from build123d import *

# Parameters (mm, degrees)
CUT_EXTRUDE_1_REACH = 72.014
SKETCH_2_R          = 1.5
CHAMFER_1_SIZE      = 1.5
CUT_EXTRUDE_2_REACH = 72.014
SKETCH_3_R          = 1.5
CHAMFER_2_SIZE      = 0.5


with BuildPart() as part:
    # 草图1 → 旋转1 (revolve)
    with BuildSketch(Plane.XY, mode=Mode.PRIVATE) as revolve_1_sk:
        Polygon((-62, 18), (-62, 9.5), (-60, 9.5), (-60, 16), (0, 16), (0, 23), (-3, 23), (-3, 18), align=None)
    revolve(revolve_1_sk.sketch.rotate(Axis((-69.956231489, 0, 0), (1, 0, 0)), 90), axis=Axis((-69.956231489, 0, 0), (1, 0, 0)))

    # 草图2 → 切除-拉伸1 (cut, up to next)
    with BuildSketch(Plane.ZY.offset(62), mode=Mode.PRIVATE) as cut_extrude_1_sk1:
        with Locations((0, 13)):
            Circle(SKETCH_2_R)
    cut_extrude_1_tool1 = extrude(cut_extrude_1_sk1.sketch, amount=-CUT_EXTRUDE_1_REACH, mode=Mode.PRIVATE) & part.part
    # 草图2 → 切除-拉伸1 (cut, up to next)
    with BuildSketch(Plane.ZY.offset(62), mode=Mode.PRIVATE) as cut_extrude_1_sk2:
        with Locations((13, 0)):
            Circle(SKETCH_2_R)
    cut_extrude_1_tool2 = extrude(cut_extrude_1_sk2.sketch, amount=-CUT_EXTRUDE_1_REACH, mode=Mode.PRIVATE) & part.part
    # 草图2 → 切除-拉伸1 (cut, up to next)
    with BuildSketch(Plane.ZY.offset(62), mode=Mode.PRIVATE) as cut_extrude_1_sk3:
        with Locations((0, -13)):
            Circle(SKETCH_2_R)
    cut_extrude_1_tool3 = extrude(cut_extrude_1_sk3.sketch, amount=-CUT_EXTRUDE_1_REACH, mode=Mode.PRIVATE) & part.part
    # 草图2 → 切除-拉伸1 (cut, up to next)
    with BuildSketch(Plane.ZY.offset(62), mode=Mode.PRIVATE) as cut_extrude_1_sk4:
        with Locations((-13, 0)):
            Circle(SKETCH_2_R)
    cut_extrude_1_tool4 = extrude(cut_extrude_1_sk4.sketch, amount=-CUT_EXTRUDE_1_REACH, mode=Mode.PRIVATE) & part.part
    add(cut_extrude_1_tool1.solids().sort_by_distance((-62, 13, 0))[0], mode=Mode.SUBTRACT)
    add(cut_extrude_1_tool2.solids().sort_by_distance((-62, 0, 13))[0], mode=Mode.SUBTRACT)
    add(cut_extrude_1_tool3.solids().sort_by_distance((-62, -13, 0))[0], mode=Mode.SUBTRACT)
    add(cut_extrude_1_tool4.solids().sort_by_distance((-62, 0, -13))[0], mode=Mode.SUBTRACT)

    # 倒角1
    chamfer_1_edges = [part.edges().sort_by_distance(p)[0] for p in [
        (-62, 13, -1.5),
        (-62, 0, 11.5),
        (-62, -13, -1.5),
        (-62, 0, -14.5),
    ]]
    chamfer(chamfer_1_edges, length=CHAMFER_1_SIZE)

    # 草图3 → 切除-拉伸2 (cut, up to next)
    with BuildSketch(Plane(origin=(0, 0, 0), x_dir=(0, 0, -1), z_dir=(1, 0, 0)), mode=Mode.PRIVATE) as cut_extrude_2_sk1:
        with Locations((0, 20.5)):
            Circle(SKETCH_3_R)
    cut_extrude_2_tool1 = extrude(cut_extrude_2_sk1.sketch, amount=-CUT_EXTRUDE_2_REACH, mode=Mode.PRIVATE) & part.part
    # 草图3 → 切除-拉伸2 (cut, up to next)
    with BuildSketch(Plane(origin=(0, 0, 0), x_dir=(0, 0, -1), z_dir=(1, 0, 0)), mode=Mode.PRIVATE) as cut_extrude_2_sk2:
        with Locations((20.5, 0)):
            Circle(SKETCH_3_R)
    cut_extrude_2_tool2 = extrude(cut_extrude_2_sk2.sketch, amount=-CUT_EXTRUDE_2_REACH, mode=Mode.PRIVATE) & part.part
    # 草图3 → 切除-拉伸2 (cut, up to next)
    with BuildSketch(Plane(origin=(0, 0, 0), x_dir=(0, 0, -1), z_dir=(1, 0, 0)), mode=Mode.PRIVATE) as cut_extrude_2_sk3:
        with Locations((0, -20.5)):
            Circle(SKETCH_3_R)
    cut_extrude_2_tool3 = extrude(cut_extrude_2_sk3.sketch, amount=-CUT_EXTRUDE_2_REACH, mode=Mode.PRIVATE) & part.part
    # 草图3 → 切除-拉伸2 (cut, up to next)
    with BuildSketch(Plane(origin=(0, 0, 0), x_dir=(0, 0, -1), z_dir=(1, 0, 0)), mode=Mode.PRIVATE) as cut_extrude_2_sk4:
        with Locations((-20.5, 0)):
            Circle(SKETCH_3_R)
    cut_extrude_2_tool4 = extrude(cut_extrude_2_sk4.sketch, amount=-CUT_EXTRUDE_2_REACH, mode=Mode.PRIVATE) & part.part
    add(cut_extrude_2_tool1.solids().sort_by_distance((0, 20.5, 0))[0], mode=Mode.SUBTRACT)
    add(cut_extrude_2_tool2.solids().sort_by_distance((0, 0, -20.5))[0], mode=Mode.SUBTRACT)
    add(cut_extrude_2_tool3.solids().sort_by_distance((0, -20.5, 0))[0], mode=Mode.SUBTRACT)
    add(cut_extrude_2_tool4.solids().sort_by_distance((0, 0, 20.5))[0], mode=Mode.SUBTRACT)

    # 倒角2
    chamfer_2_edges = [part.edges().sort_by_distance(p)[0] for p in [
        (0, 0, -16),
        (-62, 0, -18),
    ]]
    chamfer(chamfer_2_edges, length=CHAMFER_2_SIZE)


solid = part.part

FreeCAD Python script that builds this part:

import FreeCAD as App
import Part
import Sketcher

V = App.Vector


def edges_at(feature, points):
    """Names of the edges that pass closest to the given points."""
    edges = feature.Shape.Edges
    near = lambda p: min(range(len(edges)), key=lambda i: edges[i].distToShape(Part.Vertex(*p))[0])
    return sorted({f"Edge{near(p) + 1}" for p in points})

doc = App.newDocument("Part")
body = doc.addObject("PartDesign::Body", "Body")

# Sketch on XY plane
sketch1 = body.newObject("Sketcher::SketchObject", "Sketch")
sketch1.AttachmentSupport = (doc.getObject("XY_Plane"), [""])
sketch1.MapMode = "FlatFace"
sketch1.addGeometry([
    Part.LineSegment(V(-62, 18, 0), V(-62, 9.5, 0)),  # 0
    Part.LineSegment(V(-62, 9.5, 0), V(-60, 9.5, 0)),  # 1
    Part.LineSegment(V(-60, 9.5, 0), V(-60, 16, 0)),  # 2
    Part.LineSegment(V(-60, 16, 0), V(0, 16, 0)),  # 3
    Part.LineSegment(V(0, 16, 0), V(0, 23, 0)),  # 4
    Part.LineSegment(V(0, 23, 0), V(-3, 23, 0)),  # 5
    Part.LineSegment(V(-3, 23, 0), V(-3, 18, 0)),  # 6
    Part.LineSegment(V(-3, 18, 0), V(-62, 18, 0)),  # 7
], False)
sketch1.addConstraint([
    Sketcher.Constraint("Coincident", 0, 2, 1, 1),
    Sketcher.Constraint("Coincident", 1, 2, 2, 1),
    Sketcher.Constraint("Coincident", 2, 2, 3, 1),
    Sketcher.Constraint("Coincident", 3, 2, 4, 1),
    Sketcher.Constraint("Coincident", 4, 2, 5, 1),
    Sketcher.Constraint("Coincident", 5, 2, 6, 1),
    Sketcher.Constraint("Coincident", 6, 2, 7, 1),
    Sketcher.Constraint("Coincident", 7, 2, 0, 1),
    Sketcher.Constraint("Vertical", 0),
    Sketcher.Constraint("Horizontal", 1),
    Sketcher.Constraint("Vertical", 2),
    Sketcher.Constraint("Horizontal", 3),
    Sketcher.Constraint("Vertical", 4),
    Sketcher.Constraint("Horizontal", 5),
    Sketcher.Constraint("Vertical", 6),
    Sketcher.Constraint("Horizontal", 7),
    Sketcher.Constraint("PointOnObject", 3, 2, -2),
    Sketcher.Constraint("DistanceX", 1, 1, 1, 2, 2.0),
    Sketcher.Constraint("DistanceX", 3, 1, 3, 2, 60.0),
    Sketcher.Constraint("DistanceX", 5, 2, 5, 1, 3.0),
    Sketcher.Constraint("DistanceY", 4, 1, 4, 2, 7.0),
    Sketcher.Constraint("DistanceY", 6, 2, 6, 1, 5.0),
    Sketcher.Constraint("DistanceY", 0, 2, 0, 1, 8.5),
    Sketcher.Constraint("DistanceY", -1, 1, 2, 2, 16.0),
])
revolution = body.newObject("PartDesign::Revolution", "Revolution")
revolution.Profile = sketch1
revolution.ReferenceAxis = (sketch1, ["H_Axis"])
revolution.Angle = 360

# Sketch on YZ plane
sketch2 = body.newObject("Sketcher::SketchObject", "Sketch001")
sketch2.AttachmentSupport = (doc.getObject("YZ_Plane"), [""])
sketch2.MapMode = "FlatFace"
sketch2.AttachmentOffset = App.Placement(V(0, 0, -62), App.Rotation())
sketch2.addGeometry(Part.Circle(V(13, 0, 0), V(0, 0, 1), 1.5), False)
sketch2.addConstraint([
    Sketcher.Constraint("PointOnObject", 0, 3, -1),
    Sketcher.Constraint("Diameter", 0, 3.0),
    Sketcher.Constraint("DistanceX", -1, 1, 0, 3, 13.0),
])
pocket1 = body.newObject("PartDesign::Pocket", "Pocket")
pocket1.Profile = sketch2
pocket1.Type = "UpToFirst"
pocket1.Reversed = True

# Sketch on YZ plane
sketch3 = body.newObject("Sketcher::SketchObject", "Sketch002")
sketch3.AttachmentSupport = (doc.getObject("YZ_Plane"), [""])
sketch3.MapMode = "FlatFace"
sketch3.AttachmentOffset = App.Placement(V(0, 0, -62), App.Rotation())
sketch3.addGeometry(Part.Circle(V(0, 13, 0), V(0, 0, 1), 1.5), False)
sketch3.addConstraint([
    Sketcher.Constraint("PointOnObject", 0, 3, -2),
    Sketcher.Constraint("Diameter", 0, 3.0),
    Sketcher.Constraint("DistanceY", -1, 1, 0, 3, 13.0),
])
pocket2 = body.newObject("PartDesign::Pocket", "Pocket001")
pocket2.Profile = sketch3
pocket2.Type = "UpToFirst"
pocket2.Reversed = True

# Sketch on YZ plane
sketch4 = body.newObject("Sketcher::SketchObject", "Sketch003")
sketch4.AttachmentSupport = (doc.getObject("YZ_Plane"), [""])
sketch4.MapMode = "FlatFace"
sketch4.AttachmentOffset = App.Placement(V(0, 0, -62), App.Rotation())
sketch4.addGeometry(Part.Circle(V(-13, 0, 0), V(0, 0, 1), 1.5), False)
sketch4.addConstraint([
    Sketcher.Constraint("PointOnObject", 0, 3, -1),
    Sketcher.Constraint("Diameter", 0, 3.0),
    Sketcher.Constraint("DistanceX", 0, 3, -1, 1, 13.0),
])
pocket3 = body.newObject("PartDesign::Pocket", "Pocket002")
pocket3.Profile = sketch4
pocket3.Type = "UpToFirst"
pocket3.Reversed = True

# Sketch on YZ plane
sketch5 = body.newObject("Sketcher::SketchObject", "Sketch004")
sketch5.AttachmentSupport = (doc.getObject("YZ_Plane"), [""])
sketch5.MapMode = "FlatFace"
sketch5.AttachmentOffset = App.Placement(V(0, 0, -62), App.Rotation())
sketch5.addGeometry(Part.Circle(V(0, -13, 0), V(0, 0, 1), 1.5), False)
sketch5.addConstraint([
    Sketcher.Constraint("PointOnObject", 0, 3, -2),
    Sketcher.Constraint("Diameter", 0, 3.0),
    Sketcher.Constraint("DistanceY", 0, 3, -1, 1, 13.0),
])
pocket4 = body.newObject("PartDesign::Pocket", "Pocket003")
pocket4.Profile = sketch5
pocket4.Type = "UpToFirst"
pocket4.Reversed = True
doc.recompute()

chamfer = body.newObject("PartDesign::Chamfer", "Chamfer")
chamfer.Base = (pocket4, edges_at(pocket4, [
    (-62, 13, -1.5),
    (-62, 0, 11.5),
    (-62, -13, -1.5),
    (-62, 0, -14.5),
]))
chamfer.Size = 1.5

# Sketch on YZ plane
sketch6 = body.newObject("Sketcher::SketchObject", "Sketch005")
sketch6.AttachmentSupport = (doc.getObject("YZ_Plane"), [""])
sketch6.MapMode = "FlatFace"
sketch6.addGeometry(Part.Circle(V(20.5, 0, 0), V(0, 0, 1), 1.5), False)
sketch6.addConstraint([
    Sketcher.Constraint("PointOnObject", 0, 3, -1),
    Sketcher.Constraint("Diameter", 0, 3.0),
    Sketcher.Constraint("DistanceX", -1, 1, 0, 3, 20.5),
])
pocket5 = body.newObject("PartDesign::Pocket", "Pocket004")
pocket5.Profile = sketch6
pocket5.Type = "UpToFirst"

# Sketch on YZ plane
sketch7 = body.newObject("Sketcher::SketchObject", "Sketch006")
sketch7.AttachmentSupport = (doc.getObject("YZ_Plane"), [""])
sketch7.MapMode = "FlatFace"
sketch7.addGeometry(Part.Circle(V(0, -20.5, 0), V(0, 0, 1), 1.5), False)
sketch7.addConstraint([
    Sketcher.Constraint("PointOnObject", 0, 3, -2),
    Sketcher.Constraint("Diameter", 0, 3.0),
    Sketcher.Constraint("DistanceY", 0, 3, -1, 1, 20.5),
])
pocket6 = body.newObject("PartDesign::Pocket", "Pocket005")
pocket6.Profile = sketch7
pocket6.Type = "UpToFirst"

# Sketch on YZ plane
sketch8 = body.newObject("Sketcher::SketchObject", "Sketch007")
sketch8.AttachmentSupport = (doc.getObject("YZ_Plane"), [""])
sketch8.MapMode = "FlatFace"
sketch8.addGeometry(Part.Circle(V(-20.5, 0, 0), V(0, 0, 1), 1.5), False)
sketch8.addConstraint([
    Sketcher.Constraint("PointOnObject", 0, 3, -1),
    Sketcher.Constraint("Diameter", 0, 3.0),
    Sketcher.Constraint("DistanceX", 0, 3, -1, 1, 20.5),
])
pocket7 = body.newObject("PartDesign::Pocket", "Pocket006")
pocket7.Profile = sketch8
pocket7.Type = "UpToFirst"

# Sketch on YZ plane
sketch9 = body.newObject("Sketcher::SketchObject", "Sketch008")
sketch9.AttachmentSupport = (doc.getObject("YZ_Plane"), [""])
sketch9.MapMode = "FlatFace"
sketch9.addGeometry(Part.Circle(V(0, 20.5, 0), V(0, 0, 1), 1.5), False)
sketch9.addConstraint([
    Sketcher.Constraint("PointOnObject", 0, 3, -2),
    Sketcher.Constraint("Diameter", 0, 3.0),
    Sketcher.Constraint("DistanceY", -1, 1, 0, 3, 20.5),
])
pocket8 = body.newObject("PartDesign::Pocket", "Pocket007")
pocket8.Profile = sketch9
pocket8.Type = "UpToFirst"
doc.recompute()

chamfer2 = body.newObject("PartDesign::Chamfer", "Chamfer001")
chamfer2.Base = (pocket8, edges_at(pocket8, [(0, 0, -16), (-62, 0, -18)]))
chamfer2.Size = 0.5

doc.recompute()
